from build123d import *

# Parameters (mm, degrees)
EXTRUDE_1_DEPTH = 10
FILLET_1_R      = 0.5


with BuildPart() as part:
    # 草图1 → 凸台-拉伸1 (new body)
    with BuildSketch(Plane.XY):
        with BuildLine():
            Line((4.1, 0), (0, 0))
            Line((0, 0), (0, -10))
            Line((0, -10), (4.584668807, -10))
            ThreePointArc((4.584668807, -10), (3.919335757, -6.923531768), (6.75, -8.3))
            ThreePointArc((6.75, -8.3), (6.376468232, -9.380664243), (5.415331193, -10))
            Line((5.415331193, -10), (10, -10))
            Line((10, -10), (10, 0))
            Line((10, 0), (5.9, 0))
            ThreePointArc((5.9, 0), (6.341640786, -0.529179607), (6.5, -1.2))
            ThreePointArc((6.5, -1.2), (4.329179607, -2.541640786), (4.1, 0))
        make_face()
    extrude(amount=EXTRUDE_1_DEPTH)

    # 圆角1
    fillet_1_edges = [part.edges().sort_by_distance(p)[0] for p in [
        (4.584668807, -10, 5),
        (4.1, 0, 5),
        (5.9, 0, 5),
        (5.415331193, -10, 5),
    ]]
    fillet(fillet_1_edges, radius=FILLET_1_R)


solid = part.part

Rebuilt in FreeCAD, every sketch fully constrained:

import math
import FreeCAD as App
import Part
import Sketcher

V = App.Vector
Q = App.Units.Quantity


def edges_at(feature, points):
    """Names of the edges that pass closest to the given points."""
    edges = feature.Shape.Edges
    near = lambda p: min(range(len(edges)), key=lambda i: edges[i].distToShape(Part.Vertex(*p))[0])
    return sorted({f"Edge{near(p) + 1}" for p in points})

doc = App.newDocument("Part")
body = doc.addObject("PartDesign::Body", "Body")

# Sketch on XY plane
sketch1 = doc.addObject("Sketcher::SketchObject", "Sketch")
body.addObject(sketch1)
sketch1.AttachmentSupport = (doc.XY_Plane, [""])
sketch1.MapMode = "FlatFace"
sketch1.addGeometry([
    Part.LineSegment(V(4.1, 0, 0), V(0, 0, 0)),  # 0
    Part.LineSegment(V(0, 0, 0), V(0, -10, 0)),  # 1
    Part.LineSegment(V(0, -10, 0), V(4.6, -10, 0)),  # 2
    Part.ArcOfCircle(Part.Circle(V(5, -8.3, 0), V(0, 0, 1), 1.8), math.radians(0), math.radians(256)),  # 3
    Part.ArcOfCircle(Part.Circle(V(5, -8.3, 0), V(0, 0, 1), 1.8), math.radians(-76), math.radians(0)),  # 4
    Part.LineSegment(V(5.4, -10, 0), V(10, -10, 0)),  # 5
    Part.LineSegment(V(10, -10, 0), V(10, 0, 0)),  # 6
    Part.LineSegment(V(10, 0, 0), V(5.9, 0, 0)),  # 7
    Part.ArcOfCircle(Part.Circle(V(5, -1.2, 0), V(0, 0, 1), 1.5), math.radians(0), math.radians(53)),  # 8
    Part.ArcOfCircle(Part.Circle(V(5, -1.2, 0), V(0, 0, 1), 1.5), math.radians(127), math.radians(360)),  # 9
], False)
sketch1.addConstraint([
    Sketcher.Constraint("Coincident", 0, 2, 1, 1),
    Sketcher.Constraint("Coincident", 1, 2, 2, 1),
    Sketcher.Constraint("Coincident", 2, 2, 3, 2),
    Sketcher.Constraint("Tangent", 3, 1, 4, 2),
    Sketcher.Constraint("Coincident", 4, 1, 5, 1),
    Sketcher.Constraint("Coincident", 5, 2, 6, 1),
    Sketcher.Constraint("Coincident", 6, 2, 7, 1),
    Sketcher.Constraint("Coincident", 7, 2, 8, 2),
    Sketcher.Constraint("Tangent", 8, 1, 9, 2),
    Sketcher.Constraint("Coincident", 9, 1, 0, 1),
    Sketcher.Constraint("Horizontal", 0),
    Sketcher.Constraint("Vertical", 1),
    Sketcher.Constraint("Horizontal", 2),
    Sketcher.Constraint("Horizontal", 5),
    Sketcher.Constraint("Vertical", 6),
    Sketcher.Constraint("Horizontal", 7),
    Sketcher.Constraint("Coincident", 0, 2, -1, 1),
    Sketcher.Constraint("Equal", 3, 4),
    Sketcher.Constraint("Equal", 8, 9),
    Sketcher.Constraint("PointOnObject", 6, 2, -1),
    Sketcher.Constraint("Horizontal", 4, 3, 3, 1),
    Sketcher.Constraint("Horizontal", 2, 2, 4, 1),
    Sketcher.Constraint("Horizontal", 9, 3, 8, 1),
    Sketcher.Constraint("Vertical", 4, 3, 8, 3),
    Sketcher.Constraint("Equal", 2, 5),
    Sketcher.Constraint("Radius", 8, Q("1.5 mm")),
    Sketcher.Constraint("DistanceY", 1, 2, 1, 1, Q("10 mm")),
    Sketcher.Constraint("Radius", 3, Q("1.75 mm")),
    Sketcher.Constraint("DistanceX", 0, 2, 0, 1, Q("4.1 mm")),
    Sketcher.Constraint("DistanceX", -1, 1, 3, 3, Q("5 mm")),
    Sketcher.Constraint("DistanceY", 3, 3, -1, 1, Q("8.3 mm")),
])
pad1 = doc.addObject("PartDesign::Pad", "Pad")
body.addObject(pad1)
pad1.Profile = sketch1
pad1.Length = 10
doc.recompute()

fillet = doc.addObject("PartDesign::Fillet", "Fillet")
body.addObject(fillet)
fillet.Base = (pad1, edges_at(pad1, [
    (4.585, -10, 5),
    (4.1, 0, 5),
    (5.9, 0, 5),
    (5.415, -10, 5),
]))
fillet.Radius = 0.5

doc.recompute()
